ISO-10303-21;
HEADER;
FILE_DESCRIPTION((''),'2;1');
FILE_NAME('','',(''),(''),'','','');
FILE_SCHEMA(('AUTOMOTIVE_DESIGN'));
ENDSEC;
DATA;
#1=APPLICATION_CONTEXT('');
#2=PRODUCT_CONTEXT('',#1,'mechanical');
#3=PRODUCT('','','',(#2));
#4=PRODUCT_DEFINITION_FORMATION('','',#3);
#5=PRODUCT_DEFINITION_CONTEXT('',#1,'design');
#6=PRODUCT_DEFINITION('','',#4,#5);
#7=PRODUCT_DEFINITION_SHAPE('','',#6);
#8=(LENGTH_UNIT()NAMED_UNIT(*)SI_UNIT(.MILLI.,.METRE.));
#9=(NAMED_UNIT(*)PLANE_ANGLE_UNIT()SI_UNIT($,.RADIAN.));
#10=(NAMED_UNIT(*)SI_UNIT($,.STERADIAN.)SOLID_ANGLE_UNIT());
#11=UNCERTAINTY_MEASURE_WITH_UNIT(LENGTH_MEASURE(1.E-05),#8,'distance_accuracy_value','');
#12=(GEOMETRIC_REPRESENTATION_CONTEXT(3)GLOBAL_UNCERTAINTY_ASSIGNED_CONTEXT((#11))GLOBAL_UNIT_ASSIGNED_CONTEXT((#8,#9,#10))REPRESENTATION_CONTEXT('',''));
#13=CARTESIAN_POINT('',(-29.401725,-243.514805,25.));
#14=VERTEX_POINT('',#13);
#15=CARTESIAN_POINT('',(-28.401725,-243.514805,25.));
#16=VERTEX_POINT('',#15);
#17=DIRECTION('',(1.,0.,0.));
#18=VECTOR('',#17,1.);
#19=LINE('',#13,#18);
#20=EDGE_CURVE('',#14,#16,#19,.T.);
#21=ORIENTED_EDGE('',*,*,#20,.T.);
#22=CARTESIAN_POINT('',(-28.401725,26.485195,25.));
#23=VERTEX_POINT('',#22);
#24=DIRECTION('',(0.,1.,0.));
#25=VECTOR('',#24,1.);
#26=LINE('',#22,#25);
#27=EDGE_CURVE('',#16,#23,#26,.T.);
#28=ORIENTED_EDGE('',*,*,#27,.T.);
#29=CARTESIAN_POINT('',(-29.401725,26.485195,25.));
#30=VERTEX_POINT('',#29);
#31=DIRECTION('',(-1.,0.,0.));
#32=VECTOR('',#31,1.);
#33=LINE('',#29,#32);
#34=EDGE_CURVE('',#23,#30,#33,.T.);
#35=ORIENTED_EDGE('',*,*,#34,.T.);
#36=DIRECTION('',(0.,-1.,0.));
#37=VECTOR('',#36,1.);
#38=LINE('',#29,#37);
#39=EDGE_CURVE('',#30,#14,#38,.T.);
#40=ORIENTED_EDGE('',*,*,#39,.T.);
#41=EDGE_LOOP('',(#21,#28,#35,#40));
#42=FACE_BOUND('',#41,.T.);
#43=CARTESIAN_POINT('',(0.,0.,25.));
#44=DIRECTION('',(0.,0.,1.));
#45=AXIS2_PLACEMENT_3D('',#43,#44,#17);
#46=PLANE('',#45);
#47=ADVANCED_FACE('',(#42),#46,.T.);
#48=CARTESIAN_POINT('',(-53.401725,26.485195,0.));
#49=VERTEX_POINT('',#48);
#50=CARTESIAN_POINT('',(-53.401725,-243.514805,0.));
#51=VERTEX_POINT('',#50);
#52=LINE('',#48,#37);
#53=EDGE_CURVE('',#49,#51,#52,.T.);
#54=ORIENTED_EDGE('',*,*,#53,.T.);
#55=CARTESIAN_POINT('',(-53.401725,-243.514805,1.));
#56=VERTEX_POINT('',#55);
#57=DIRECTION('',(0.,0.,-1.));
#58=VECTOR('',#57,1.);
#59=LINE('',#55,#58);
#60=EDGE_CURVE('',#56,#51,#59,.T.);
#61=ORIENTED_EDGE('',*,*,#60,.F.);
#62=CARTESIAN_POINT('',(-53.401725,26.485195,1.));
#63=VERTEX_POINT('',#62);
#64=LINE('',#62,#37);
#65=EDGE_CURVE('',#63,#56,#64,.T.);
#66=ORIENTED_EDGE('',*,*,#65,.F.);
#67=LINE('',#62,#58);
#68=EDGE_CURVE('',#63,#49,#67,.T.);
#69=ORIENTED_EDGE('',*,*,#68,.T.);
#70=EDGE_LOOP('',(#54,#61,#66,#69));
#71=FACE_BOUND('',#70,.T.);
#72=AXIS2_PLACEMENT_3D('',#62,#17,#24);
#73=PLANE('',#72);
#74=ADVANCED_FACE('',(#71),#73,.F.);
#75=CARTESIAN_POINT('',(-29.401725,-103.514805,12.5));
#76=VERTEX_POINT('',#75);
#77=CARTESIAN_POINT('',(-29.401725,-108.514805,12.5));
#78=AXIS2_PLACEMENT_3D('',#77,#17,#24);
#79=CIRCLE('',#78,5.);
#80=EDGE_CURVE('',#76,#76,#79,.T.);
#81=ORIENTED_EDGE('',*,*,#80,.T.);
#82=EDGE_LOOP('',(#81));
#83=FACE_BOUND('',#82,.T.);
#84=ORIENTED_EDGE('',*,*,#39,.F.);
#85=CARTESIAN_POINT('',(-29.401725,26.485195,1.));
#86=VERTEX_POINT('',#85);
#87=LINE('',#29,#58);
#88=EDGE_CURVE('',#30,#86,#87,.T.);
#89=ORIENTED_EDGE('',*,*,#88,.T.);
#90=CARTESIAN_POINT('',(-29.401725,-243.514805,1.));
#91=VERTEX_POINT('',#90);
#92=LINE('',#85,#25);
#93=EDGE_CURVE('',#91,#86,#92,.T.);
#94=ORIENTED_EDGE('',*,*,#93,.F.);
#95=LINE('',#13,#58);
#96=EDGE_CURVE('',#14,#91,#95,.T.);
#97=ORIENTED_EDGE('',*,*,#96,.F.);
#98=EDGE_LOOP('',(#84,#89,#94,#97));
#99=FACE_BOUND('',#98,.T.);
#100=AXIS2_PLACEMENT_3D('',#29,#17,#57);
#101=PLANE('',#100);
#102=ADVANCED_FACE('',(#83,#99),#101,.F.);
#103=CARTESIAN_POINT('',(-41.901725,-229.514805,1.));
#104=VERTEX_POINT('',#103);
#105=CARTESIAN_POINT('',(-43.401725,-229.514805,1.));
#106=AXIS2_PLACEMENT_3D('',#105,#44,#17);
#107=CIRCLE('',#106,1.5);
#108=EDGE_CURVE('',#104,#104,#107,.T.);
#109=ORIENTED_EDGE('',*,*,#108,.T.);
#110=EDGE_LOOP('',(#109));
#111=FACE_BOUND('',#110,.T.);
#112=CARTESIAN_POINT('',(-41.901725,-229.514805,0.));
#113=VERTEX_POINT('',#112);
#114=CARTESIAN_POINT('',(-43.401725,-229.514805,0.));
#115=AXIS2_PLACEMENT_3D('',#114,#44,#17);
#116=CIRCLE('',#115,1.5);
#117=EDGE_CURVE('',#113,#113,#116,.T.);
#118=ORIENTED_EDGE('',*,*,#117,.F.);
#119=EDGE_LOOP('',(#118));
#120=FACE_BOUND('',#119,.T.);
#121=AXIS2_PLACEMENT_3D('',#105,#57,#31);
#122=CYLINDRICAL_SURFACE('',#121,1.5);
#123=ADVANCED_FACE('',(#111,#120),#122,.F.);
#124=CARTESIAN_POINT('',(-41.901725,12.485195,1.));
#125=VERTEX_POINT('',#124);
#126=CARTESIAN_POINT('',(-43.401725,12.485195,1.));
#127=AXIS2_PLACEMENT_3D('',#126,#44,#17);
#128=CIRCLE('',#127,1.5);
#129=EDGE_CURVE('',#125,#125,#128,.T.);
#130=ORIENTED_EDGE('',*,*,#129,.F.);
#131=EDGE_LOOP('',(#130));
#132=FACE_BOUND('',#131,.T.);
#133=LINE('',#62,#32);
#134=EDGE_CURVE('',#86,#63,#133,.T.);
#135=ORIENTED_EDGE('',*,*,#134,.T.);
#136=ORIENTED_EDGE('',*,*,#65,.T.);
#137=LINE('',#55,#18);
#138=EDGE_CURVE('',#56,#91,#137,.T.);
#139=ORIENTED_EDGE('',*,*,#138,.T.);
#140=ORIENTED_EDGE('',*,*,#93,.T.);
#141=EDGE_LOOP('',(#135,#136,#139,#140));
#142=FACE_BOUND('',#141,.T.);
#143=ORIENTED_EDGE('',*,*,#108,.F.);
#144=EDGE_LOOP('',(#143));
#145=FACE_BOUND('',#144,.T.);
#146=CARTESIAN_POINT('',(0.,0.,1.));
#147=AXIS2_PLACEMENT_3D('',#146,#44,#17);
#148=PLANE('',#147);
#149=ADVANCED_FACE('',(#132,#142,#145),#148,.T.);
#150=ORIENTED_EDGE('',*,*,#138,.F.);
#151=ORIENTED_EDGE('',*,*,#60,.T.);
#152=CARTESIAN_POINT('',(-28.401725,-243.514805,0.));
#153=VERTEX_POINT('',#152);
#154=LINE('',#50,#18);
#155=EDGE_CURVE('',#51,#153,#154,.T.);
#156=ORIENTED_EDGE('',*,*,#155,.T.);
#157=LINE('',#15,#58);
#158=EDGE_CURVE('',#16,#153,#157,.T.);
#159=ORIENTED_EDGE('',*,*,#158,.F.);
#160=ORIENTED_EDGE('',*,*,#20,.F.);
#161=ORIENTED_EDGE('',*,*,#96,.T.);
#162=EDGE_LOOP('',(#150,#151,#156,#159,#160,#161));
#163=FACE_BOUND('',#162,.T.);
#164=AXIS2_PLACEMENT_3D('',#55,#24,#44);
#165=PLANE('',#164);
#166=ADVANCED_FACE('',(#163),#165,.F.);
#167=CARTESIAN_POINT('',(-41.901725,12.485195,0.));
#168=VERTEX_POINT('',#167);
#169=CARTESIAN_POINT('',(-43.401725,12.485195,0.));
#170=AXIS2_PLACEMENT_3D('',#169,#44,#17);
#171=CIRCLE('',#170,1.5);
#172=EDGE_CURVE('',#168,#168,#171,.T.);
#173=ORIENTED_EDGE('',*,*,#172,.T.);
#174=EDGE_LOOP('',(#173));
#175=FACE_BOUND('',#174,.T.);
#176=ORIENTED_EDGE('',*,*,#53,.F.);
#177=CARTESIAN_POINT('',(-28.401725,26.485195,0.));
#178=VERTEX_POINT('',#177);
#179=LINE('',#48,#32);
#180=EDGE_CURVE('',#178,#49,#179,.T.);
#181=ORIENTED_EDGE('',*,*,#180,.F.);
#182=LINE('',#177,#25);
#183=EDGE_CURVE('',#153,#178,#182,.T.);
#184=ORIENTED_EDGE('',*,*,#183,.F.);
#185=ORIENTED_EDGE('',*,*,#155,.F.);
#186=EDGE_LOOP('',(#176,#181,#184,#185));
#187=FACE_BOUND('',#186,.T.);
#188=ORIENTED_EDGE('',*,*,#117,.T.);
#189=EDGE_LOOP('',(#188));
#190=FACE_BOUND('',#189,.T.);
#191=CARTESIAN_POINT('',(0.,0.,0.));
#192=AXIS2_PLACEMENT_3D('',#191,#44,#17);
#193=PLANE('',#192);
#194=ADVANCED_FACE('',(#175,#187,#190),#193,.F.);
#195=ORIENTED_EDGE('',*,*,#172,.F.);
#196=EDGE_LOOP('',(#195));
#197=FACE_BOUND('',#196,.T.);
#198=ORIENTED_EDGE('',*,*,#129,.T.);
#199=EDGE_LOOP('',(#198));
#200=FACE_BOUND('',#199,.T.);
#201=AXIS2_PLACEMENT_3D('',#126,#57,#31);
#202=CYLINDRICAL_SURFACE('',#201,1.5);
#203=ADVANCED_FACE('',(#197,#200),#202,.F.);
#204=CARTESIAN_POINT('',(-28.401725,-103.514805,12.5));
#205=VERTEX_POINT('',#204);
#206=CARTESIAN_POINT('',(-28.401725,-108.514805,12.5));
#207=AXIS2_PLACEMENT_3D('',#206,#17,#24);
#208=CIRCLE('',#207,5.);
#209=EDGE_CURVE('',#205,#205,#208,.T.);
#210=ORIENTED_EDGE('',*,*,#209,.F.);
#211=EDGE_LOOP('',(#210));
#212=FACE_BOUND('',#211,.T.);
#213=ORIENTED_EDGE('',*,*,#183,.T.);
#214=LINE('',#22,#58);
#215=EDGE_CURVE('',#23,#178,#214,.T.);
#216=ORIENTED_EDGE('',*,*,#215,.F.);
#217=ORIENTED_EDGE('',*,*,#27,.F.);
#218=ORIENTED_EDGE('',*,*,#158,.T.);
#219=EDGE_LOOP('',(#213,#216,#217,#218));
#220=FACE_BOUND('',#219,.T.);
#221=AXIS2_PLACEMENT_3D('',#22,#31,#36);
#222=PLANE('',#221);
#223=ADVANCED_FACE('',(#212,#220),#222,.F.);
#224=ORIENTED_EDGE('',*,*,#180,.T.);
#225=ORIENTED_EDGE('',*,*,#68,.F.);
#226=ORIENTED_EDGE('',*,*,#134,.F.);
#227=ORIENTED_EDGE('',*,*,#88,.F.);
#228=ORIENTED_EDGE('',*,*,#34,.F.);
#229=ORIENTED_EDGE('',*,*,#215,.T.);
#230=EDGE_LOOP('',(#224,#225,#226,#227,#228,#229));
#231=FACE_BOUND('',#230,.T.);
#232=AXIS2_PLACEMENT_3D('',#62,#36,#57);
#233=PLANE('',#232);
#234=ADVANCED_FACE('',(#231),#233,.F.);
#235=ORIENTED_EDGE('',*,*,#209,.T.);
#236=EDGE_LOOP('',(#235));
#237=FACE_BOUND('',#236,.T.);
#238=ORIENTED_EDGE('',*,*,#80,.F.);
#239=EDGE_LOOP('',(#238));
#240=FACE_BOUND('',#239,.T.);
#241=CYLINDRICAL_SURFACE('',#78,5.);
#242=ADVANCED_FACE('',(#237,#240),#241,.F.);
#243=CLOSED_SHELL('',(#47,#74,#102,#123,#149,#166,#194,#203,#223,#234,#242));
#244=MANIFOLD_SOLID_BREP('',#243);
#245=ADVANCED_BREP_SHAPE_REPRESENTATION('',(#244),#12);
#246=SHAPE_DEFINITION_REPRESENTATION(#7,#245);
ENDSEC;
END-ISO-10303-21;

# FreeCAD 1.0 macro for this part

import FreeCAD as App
import Part
import Sketcher

V = App.Vector
Q = App.Units.Quantity

doc = App.newDocument("Part")
body = doc.addObject("PartDesign::Body", "Body")

# Sketch on XY plane
sketch1 = body.newObject("Sketcher::SketchObject", "Sketch")
sketch1.AttachmentSupport = (doc.getObject("XY_Plane"), [""])
sketch1.MapMode = "FlatFace"
sketch1.addGeometry([
    Part.LineSegment(V(-53.4, 26.5, 0), V(-53.4, -243.5, 0)),  # 0
    Part.LineSegment(V(-53.4, -243.5, 0), V(-29.4, -243.5, 0)),  # 1
    Part.LineSegment(V(-29.4, -243.5, 0), V(-29.4, 26.5, 0)),  # 2
    Part.LineSegment(V(-29.4, 26.5, 0), V(-53.4, 26.5, 0)),  # 3
    Part.Circle(V(-43.4, -229.5, 0), V(0, 0, 1), 1.5),  # 4
    Part.Circle(V(-43.4, 12.5, 0), V(0, 0, 1), 1.5),  # 5
], False)
sketch1.addConstraint([
    Sketcher.Constraint("Coincident", 0, 2, 1, 1),
    Sketcher.Constraint("Coincident", 1, 2, 2, 1),
    Sketcher.Constraint("Coincident", 2, 2, 3, 1),
    Sketcher.Constraint("Coincident", 3, 2, 0, 1),
    Sketcher.Constraint("Vertical", 0),
    Sketcher.Constraint("Horizontal", 1),
    Sketcher.Constraint("Vertical", 2),
    Sketcher.Constraint("Horizontal", 3),
    Sketcher.Constraint("Equal", 4, 5),
    Sketcher.Constraint("Vertical", 4, 3, 5, 3),
    Sketcher.Constraint("Diameter", 4, Q("3 mm")),
    Sketcher.Constraint("DistanceX", 1, 1, 1, 2, Q("24 mm")),
    Sketcher.Constraint("DistanceY", 0, 2, 0, 1, Q("270 mm")),
    Sketcher.Constraint("DistanceY", 4, 3, 5, 3, Q("242 mm")),
    Sketcher.Constraint("DistanceX", 0, 2, 4, 3, Q("10 mm")),
    Sketcher.Constraint("DistanceY", 0, 2, 4, 3, Q("14 mm")),
    Sketcher.Constraint("DistanceX", 4, 3, -1, 1, Q("43.401725 mm")),
    Sketcher.Constraint("DistanceY", 4, 3, -1, 1, Q("229.514805 mm")),
])
pad1 = body.newObject("PartDesign::Pad", "Pad")
pad1.Profile = sketch1
pad1.Length = 1

# Sketch on XY plane
sketch2 = body.newObject("Sketcher::SketchObject", "Sketch001")
sketch2.AttachmentSupport = (doc.getObject("XY_Plane"), [""])
sketch2.MapMode = "FlatFace"
sketch2.addGeometry([
    Part.LineSegment(V(-29.4, 26.5, 0), V(-29.4, -243.5, 0)),
    Part.LineSegment(V(-29.4, -243.5, 0), V(-28.4, -243.5, 0)),
    Part.LineSegment(V(-28.4, -243.5, 0), V(-28.4, 26.5, 0)),
    Part.LineSegment(V(-28.4, 26.5, 0), V(-29.4, 26.5, 0)),
], False)
sketch2.addConstraint([
    Sketcher.Constraint("Coincident", 0, 2, 1, 1),
    Sketcher.Constraint("Coincident", 1, 2, 2, 1),
    Sketcher.Constraint("Coincident", 2, 2, 3, 1),
    Sketcher.Constraint("Coincident", 3, 2, 0, 1),
    Sketcher.Constraint("Vertical", 0),
    Sketcher.Constraint("Horizontal", 1),
    Sketcher.Constraint("Vertical", 2),
    Sketcher.Constraint("Horizontal", 3),
    Sketcher.Constraint("DistanceX", 1, 1, 1, 2, Q("1 mm")),
    Sketcher.Constraint("DistanceY", 0, 2, 0, 1, Q("270 mm")),
    Sketcher.Constraint("DistanceX", 0, 2, -1, 1, Q("29.401725 mm")),
    Sketcher.Constraint("DistanceY", 0, 2, -1, 1, Q("243.514805 mm")),
])
pad2 = body.newObject("PartDesign::Pad", "Pad001")
pad2.Profile = sketch2
pad2.Length = 25

# Sketch on YZ plane
sketch3 = body.newObject("Sketcher::SketchObject", "Sketch002")
sketch3.AttachmentSupport = (doc.getObject("YZ_Plane"), [""])
sketch3.MapMode = "FlatFace"
sketch3.AttachmentOffset = App.Placement(V(0, 0, -28.401725), App.Rotation())
sketch3.addGeometry(Part.Circle(V(-109, 12, 0), V(0, 0, 1), 5), False)
sketch3.addConstraint([
    Sketcher.Constraint("Diameter", 0, Q("10 mm")),
    Sketcher.Constraint("DistanceY", -1, 1, 0, 3, Q("12.5 mm")),
    Sketcher.Constraint("DistanceX", 0, 3, -1, 1, Q("108.514805 mm")),
])
pocket1 = body.newObject("PartDesign::Pocket", "Pocket")
pocket1.Profile = sketch3
pocket1.Length = 1

doc.recompute()
